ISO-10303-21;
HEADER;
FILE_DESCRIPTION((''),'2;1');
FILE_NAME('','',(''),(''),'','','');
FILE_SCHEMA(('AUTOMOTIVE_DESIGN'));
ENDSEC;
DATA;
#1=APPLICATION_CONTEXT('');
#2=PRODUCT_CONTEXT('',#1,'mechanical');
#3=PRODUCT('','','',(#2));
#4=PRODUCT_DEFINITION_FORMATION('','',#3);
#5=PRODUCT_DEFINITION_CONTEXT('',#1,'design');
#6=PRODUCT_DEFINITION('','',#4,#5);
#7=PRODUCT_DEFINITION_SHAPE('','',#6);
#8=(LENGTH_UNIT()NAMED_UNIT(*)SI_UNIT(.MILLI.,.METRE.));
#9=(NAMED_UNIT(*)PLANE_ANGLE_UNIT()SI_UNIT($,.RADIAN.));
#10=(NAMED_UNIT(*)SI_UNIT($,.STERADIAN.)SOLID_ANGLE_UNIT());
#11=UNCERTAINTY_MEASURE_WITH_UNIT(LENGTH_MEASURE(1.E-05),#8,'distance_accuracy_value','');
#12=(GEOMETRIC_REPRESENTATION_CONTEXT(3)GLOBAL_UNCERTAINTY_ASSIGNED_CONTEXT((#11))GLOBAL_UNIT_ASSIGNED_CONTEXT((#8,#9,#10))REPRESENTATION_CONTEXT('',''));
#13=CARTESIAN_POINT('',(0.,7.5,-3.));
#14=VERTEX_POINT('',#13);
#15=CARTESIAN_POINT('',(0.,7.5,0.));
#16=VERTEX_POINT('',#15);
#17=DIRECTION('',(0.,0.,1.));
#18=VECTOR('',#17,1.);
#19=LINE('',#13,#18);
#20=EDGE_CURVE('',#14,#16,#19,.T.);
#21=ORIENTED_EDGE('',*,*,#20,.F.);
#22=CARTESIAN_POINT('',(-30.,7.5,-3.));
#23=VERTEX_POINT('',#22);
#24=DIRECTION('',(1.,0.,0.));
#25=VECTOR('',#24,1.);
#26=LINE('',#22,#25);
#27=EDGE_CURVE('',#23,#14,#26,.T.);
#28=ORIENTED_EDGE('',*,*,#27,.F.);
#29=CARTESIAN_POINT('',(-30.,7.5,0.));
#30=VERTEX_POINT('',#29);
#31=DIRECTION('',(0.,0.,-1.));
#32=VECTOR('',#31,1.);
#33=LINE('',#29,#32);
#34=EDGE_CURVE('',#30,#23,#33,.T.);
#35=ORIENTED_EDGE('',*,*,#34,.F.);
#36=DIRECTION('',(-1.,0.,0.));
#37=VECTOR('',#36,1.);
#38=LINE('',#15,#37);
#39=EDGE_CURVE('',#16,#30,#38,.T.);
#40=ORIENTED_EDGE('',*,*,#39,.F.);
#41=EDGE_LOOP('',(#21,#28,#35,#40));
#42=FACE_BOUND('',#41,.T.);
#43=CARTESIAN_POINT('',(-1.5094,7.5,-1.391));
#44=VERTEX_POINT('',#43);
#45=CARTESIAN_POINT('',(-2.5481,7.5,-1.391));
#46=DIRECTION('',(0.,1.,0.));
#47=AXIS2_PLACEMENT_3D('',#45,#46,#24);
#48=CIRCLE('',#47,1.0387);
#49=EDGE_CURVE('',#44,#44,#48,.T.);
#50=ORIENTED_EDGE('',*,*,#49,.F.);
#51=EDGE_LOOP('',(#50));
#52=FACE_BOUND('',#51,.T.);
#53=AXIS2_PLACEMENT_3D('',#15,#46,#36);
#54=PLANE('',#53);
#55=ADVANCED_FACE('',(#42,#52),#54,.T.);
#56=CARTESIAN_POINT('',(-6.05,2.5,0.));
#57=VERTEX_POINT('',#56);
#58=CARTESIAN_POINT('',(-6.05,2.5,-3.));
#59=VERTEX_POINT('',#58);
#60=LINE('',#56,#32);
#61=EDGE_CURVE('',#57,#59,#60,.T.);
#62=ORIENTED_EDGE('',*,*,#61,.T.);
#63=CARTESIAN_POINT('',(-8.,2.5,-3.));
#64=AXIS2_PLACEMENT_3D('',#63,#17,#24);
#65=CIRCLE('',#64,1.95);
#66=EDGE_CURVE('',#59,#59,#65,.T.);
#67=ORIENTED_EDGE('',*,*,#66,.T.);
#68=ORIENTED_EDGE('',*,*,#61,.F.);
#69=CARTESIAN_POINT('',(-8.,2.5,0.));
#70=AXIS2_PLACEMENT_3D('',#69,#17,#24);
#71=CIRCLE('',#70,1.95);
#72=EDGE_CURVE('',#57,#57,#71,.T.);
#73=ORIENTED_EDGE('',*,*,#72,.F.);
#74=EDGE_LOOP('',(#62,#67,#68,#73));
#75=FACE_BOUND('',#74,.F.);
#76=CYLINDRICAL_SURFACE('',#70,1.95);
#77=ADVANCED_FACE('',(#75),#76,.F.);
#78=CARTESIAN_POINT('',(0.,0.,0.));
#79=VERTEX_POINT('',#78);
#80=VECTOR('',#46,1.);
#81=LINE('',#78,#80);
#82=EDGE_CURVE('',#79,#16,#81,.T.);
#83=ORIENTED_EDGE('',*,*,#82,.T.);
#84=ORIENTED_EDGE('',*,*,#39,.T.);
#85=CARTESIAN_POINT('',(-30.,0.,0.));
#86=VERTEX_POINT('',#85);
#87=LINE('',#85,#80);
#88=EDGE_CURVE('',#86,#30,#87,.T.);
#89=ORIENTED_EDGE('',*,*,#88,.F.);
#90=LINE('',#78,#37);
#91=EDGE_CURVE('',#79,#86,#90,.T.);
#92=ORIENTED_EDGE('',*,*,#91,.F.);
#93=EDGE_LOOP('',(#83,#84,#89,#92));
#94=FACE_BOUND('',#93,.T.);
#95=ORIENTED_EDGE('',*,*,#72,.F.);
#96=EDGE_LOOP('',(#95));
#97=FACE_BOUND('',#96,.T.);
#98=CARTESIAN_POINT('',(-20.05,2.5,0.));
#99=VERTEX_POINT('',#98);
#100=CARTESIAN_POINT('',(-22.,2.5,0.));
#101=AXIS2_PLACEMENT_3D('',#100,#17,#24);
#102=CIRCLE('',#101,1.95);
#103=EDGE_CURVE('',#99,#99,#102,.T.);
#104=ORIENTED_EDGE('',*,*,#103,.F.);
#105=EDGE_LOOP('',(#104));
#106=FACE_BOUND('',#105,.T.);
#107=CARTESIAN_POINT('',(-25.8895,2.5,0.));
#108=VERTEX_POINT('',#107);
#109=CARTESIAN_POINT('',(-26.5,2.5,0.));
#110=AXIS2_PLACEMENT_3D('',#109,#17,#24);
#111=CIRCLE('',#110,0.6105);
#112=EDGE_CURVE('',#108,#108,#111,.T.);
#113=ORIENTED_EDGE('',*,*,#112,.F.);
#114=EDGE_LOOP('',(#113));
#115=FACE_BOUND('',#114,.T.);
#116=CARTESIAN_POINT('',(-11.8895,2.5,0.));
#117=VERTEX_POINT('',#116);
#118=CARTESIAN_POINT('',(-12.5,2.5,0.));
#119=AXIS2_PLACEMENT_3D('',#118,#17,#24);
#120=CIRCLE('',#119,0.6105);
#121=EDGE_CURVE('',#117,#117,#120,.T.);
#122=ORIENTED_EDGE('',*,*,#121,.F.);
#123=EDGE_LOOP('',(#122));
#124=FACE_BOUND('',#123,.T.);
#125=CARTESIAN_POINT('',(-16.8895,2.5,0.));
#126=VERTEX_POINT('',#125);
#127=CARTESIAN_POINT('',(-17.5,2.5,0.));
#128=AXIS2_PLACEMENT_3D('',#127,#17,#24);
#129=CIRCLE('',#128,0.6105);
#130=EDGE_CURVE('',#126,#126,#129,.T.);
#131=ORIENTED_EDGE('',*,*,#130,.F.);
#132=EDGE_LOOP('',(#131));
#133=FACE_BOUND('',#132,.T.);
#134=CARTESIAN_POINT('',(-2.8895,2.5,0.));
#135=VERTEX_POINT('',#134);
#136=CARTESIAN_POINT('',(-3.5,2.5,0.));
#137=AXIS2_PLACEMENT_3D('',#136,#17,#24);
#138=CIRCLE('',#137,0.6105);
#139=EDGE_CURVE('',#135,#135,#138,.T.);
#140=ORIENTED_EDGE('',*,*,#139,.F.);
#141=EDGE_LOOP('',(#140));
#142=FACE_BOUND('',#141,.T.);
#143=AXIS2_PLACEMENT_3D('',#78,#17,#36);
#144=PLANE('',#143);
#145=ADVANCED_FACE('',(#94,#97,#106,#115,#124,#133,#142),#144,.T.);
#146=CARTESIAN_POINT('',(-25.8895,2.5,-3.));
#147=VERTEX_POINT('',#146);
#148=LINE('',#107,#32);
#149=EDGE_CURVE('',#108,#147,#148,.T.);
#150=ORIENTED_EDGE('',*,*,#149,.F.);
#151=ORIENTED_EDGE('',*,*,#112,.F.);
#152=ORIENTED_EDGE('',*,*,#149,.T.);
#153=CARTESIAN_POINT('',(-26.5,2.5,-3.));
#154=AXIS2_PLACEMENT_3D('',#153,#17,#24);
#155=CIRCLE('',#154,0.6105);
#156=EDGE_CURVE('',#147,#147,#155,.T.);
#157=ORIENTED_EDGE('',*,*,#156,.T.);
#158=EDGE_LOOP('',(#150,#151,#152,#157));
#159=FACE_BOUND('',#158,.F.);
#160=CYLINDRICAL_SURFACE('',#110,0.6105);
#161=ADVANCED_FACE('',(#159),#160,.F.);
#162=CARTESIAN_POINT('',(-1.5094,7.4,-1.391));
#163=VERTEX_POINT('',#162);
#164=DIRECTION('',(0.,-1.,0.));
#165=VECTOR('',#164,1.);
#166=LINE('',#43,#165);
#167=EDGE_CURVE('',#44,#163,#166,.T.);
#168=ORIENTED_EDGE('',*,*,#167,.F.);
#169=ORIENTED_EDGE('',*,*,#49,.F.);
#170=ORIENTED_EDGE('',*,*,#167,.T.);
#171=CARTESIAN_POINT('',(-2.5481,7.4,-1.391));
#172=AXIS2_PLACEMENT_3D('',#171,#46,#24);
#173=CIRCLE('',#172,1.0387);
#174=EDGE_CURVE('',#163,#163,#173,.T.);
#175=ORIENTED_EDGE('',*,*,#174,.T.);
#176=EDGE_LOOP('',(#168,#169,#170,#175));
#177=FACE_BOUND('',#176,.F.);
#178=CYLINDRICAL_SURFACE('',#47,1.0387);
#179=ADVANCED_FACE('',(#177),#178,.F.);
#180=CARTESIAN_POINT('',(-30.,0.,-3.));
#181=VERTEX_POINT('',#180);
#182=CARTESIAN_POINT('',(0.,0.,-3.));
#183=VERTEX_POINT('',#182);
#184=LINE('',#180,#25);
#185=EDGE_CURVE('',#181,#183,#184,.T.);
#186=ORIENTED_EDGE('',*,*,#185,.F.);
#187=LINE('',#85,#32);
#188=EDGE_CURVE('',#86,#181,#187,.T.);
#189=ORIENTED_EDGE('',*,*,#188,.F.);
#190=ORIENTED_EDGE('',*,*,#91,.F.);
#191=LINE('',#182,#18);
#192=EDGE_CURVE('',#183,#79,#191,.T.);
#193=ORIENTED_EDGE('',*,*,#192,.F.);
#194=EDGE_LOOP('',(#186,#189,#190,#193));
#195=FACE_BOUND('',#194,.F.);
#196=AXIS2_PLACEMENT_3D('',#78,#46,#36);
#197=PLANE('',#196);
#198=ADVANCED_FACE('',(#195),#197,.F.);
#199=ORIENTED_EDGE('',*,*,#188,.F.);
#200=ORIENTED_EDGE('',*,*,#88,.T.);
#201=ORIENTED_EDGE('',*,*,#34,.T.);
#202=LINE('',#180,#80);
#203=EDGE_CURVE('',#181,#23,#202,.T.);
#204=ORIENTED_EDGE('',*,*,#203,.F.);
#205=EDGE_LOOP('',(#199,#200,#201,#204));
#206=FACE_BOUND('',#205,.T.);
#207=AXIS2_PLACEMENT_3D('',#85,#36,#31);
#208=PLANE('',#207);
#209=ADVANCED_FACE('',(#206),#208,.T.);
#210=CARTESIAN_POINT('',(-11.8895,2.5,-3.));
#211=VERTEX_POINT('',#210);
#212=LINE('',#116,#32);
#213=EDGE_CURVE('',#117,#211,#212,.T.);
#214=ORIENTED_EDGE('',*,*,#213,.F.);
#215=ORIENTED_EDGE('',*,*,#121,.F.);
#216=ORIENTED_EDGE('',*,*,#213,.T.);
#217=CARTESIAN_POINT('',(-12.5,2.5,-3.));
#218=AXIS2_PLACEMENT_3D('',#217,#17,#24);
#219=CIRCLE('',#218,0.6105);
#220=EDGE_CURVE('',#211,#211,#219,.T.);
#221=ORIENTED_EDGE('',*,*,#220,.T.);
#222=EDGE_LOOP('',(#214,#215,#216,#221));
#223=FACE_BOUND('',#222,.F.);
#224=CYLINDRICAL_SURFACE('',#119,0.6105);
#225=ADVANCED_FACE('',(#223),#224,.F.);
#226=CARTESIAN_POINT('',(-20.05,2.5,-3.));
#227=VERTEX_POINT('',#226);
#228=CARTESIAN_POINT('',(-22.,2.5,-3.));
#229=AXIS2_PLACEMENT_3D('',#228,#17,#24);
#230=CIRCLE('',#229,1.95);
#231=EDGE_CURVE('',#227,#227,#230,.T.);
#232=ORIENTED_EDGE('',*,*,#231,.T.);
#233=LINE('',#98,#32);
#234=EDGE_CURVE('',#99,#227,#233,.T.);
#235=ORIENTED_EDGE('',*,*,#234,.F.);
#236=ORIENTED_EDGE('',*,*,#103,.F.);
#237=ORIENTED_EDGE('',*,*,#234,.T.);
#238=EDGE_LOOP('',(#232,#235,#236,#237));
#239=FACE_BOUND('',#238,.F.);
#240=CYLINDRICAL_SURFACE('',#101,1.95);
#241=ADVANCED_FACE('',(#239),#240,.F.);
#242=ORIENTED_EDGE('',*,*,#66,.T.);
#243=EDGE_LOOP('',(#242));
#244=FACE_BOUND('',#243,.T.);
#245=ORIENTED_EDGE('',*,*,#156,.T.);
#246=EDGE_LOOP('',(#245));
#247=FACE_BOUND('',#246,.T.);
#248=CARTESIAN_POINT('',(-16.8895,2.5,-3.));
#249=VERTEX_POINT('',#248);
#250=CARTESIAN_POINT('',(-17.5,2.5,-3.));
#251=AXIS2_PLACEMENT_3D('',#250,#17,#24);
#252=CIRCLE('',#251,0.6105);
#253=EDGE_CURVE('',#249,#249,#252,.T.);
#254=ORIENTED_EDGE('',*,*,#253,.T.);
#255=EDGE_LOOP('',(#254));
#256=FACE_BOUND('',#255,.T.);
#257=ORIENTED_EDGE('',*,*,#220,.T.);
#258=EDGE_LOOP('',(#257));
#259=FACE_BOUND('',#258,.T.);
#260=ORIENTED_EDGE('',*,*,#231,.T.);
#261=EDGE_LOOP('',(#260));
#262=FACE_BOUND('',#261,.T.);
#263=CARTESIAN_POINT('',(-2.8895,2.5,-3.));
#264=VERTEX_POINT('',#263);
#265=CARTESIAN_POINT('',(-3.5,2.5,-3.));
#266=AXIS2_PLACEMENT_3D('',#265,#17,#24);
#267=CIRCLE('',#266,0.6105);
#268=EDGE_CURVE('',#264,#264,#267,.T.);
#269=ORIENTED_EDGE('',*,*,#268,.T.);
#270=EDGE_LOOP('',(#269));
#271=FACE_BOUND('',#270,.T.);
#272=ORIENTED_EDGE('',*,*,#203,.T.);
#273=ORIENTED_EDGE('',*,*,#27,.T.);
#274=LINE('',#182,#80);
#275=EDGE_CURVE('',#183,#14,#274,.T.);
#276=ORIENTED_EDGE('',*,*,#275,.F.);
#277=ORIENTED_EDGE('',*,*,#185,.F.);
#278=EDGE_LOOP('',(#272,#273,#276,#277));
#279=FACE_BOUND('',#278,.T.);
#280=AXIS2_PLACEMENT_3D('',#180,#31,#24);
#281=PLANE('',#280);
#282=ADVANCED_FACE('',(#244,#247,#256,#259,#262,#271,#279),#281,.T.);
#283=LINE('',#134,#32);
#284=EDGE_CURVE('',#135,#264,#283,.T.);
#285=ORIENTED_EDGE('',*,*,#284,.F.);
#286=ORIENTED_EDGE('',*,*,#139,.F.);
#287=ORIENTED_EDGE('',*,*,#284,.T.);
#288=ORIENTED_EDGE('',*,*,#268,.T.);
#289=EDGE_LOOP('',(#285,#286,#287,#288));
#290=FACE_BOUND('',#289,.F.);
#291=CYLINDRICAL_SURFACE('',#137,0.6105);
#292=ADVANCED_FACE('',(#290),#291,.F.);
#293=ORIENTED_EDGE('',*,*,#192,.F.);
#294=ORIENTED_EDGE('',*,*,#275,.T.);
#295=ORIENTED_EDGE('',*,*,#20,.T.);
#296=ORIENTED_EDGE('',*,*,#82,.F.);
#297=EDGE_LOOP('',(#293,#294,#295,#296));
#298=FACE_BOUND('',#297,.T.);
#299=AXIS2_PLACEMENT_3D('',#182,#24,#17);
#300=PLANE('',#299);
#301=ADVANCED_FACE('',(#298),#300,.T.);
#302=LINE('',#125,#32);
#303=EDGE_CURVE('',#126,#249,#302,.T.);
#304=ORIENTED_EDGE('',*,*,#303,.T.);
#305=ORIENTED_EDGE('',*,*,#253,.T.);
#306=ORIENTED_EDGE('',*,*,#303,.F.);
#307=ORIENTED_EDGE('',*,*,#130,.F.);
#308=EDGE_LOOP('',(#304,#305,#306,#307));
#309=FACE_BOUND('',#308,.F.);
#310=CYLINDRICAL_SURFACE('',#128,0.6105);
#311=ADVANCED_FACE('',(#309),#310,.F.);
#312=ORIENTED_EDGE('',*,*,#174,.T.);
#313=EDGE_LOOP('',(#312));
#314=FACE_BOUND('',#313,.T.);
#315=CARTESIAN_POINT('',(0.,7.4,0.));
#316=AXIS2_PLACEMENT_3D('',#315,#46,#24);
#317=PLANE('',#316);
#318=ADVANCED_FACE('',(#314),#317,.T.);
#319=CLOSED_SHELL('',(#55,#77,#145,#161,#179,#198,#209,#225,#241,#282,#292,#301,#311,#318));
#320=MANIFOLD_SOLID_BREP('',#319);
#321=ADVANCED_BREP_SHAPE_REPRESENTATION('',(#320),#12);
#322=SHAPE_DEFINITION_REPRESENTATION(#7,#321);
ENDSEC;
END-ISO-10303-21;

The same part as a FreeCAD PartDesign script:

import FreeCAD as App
import Part
import Sketcher

V = App.Vector
Q = App.Units.Quantity


def add_polygon(sketch, points):
    """Adds a closed chain of lines whose ends are joined by coincident constraints."""
    first, n = sketch.GeometryCount, len(points)
    for a, b in zip(points, points[1:] + points[:1]):
        sketch.addGeometry(Part.LineSegment(App.Vector(*a, 0), App.Vector(*b, 0)), False)
    for i in range(n):
        sketch.addConstraint(Sketcher.Constraint("Coincident", first + i, 2, first + (i + 1) % n, 1))

doc = App.newDocument("Part")
body = doc.addObject("PartDesign::Body", "Body")

sketch1 = body.newObject("Sketcher::SketchObject", "Sketch")
sketch1.AttachmentSupport = (doc.getObject("XZ_Plane"), [""])
sketch1.MapMode = "FlatFace"
add_polygon(sketch1, [(-30, 0), (0, 0), (0, -3), (-30, -3)])
sketch1.addConstraint(Sketcher.Constraint("Horizontal", 0))
sketch1.addConstraint(Sketcher.Constraint("Vertical", 1))
sketch1.addConstraint(Sketcher.Constraint("Horizontal", 2))
sketch1.addConstraint(Sketcher.Constraint("Vertical", 3))
sketch1.addConstraint(Sketcher.Constraint("Coincident", 0, 2, -1, 1))
sketch1.addConstraint(Sketcher.Constraint("DistanceX", 0, 1, 0, 2, Q("30 mm")))
sketch1.addConstraint(Sketcher.Constraint("DistanceY", 1, 2, 1, 1, Q("3 mm")))
pad1 = body.newObject("PartDesign::Pad", "Pad")
pad1.Profile = sketch1
pad1.Length = 7.5
pad1.Reversed = True

sketch2 = body.newObject("Sketcher::SketchObject", "Sketch001")
sketch2.AttachmentSupport = (doc.getObject("XZ_Plane"), [""])
sketch2.MapMode = "FlatFace"
sketch2.AttachmentOffset = App.Placement(V(0, 0, -7.5), App.Rotation())
sketch2.addGeometry(Part.Circle(V(-2.5, -1.4, 0), V(0, 0, 1), 1), False)
sketch2.addConstraint(Sketcher.Constraint("Diameter", 0, Q("2.0774 mm")))
sketch2.addConstraint(Sketcher.Constraint("DistanceX", 0, 3, -1, 1, Q("2.548 mm")))
sketch2.addConstraint(Sketcher.Constraint("DistanceY", 0, 3, -1, 1, Q("1.391 mm")))
pocket1 = body.newObject("PartDesign::Pocket", "Pocket")
pocket1.Profile = sketch2
pocket1.Length = 0.1
pocket1.Reversed = True

sketch3 = body.newObject("Sketcher::SketchObject", "Sketch002")
sketch3.AttachmentSupport = (doc.getObject("XY_Plane"), [""])
sketch3.MapMode = "FlatFace"
sketch3.addGeometry(Part.Circle(V(-3.5, 2.5, 0), V(0, 0, 1), 0.6), False)
sketch3.addGeometry(Part.Circle(V(-8, 2.5, 0), V(0, 0, 1), 1.9), False)
sketch3.addGeometry(Part.Circle(V(-12.5, 2.5, 0), V(0, 0, 1), 0.6), False)
sketch3.addGeometry(Part.Circle(V(-26.5, 2.5, 0), V(0, 0, 1), 0.6), False)
sketch3.addGeometry(Part.Circle(V(-22, 2.5, 0), V(0, 0, 1), 1.9), False)
sketch3.addGeometry(Part.Circle(V(-17.5, 2.5, 0), V(0, 0, 1), 0.6), False)
sketch3.addConstraint(Sketcher.Constraint("Equal", 0, 2))
sketch3.addConstraint(Sketcher.Constraint("Equal", 2, 3))
sketch3.addConstraint(Sketcher.Constraint("Equal", 1, 4))
sketch3.addConstraint(Sketcher.Constraint("Equal", 3, 5))
sketch3.addConstraint(Sketcher.Constraint("Horizontal", 0, 3, 1, 3))
sketch3.addConstraint(Sketcher.Constraint("Horizontal", 1, 3, 2, 3))
sketch3.addConstraint(Sketcher.Constraint("Horizontal", 2, 3, 3, 3))
sketch3.addConstraint(Sketcher.Constraint("Horizontal", 3, 3, 4, 3))
sketch3.addConstraint(Sketcher.Constraint("Horizontal", 4, 3, 5, 3))
sketch3.addConstraint(Sketcher.Constraint("Diameter", 1, Q("3.9 mm")))
sketch3.addConstraint(Sketcher.Constraint("Diameter", 0, Q("1.221 mm")))
sketch3.addConstraint(Sketcher.Constraint("DistanceX", 1, 3, -1, 1, Q("8 mm")))
sketch3.addConstraint(Sketcher.Constraint("DistanceX", 0, 3, -1, 1, Q("3.5 mm")))
sketch3.addConstraint(Sketcher.Constraint("DistanceY", -1, 1, 0, 3, Q("2.5 mm")))
sketch3.addConstraint(Sketcher.Constraint("DistanceX", 2, 3, 1, 3, Q("4.5 mm")))
sketch3.addConstraint(Sketcher.Constraint("DistanceX", 3, 3, 4, 3, Q("4.5 mm")))
sketch3.addConstraint(Sketcher.Constraint("DistanceX", 4, 3, 5, 3, Q("4.5 mm")))
sketch3.addConstraint(Sketcher.Constraint("DistanceX", 4, 3, -1, 1, Q("22 mm")))
pocket2 = body.newObject("PartDesign::Pocket", "Pocket001")
pocket2.Profile = sketch3
pocket2.Length = 3

doc.recompute()
